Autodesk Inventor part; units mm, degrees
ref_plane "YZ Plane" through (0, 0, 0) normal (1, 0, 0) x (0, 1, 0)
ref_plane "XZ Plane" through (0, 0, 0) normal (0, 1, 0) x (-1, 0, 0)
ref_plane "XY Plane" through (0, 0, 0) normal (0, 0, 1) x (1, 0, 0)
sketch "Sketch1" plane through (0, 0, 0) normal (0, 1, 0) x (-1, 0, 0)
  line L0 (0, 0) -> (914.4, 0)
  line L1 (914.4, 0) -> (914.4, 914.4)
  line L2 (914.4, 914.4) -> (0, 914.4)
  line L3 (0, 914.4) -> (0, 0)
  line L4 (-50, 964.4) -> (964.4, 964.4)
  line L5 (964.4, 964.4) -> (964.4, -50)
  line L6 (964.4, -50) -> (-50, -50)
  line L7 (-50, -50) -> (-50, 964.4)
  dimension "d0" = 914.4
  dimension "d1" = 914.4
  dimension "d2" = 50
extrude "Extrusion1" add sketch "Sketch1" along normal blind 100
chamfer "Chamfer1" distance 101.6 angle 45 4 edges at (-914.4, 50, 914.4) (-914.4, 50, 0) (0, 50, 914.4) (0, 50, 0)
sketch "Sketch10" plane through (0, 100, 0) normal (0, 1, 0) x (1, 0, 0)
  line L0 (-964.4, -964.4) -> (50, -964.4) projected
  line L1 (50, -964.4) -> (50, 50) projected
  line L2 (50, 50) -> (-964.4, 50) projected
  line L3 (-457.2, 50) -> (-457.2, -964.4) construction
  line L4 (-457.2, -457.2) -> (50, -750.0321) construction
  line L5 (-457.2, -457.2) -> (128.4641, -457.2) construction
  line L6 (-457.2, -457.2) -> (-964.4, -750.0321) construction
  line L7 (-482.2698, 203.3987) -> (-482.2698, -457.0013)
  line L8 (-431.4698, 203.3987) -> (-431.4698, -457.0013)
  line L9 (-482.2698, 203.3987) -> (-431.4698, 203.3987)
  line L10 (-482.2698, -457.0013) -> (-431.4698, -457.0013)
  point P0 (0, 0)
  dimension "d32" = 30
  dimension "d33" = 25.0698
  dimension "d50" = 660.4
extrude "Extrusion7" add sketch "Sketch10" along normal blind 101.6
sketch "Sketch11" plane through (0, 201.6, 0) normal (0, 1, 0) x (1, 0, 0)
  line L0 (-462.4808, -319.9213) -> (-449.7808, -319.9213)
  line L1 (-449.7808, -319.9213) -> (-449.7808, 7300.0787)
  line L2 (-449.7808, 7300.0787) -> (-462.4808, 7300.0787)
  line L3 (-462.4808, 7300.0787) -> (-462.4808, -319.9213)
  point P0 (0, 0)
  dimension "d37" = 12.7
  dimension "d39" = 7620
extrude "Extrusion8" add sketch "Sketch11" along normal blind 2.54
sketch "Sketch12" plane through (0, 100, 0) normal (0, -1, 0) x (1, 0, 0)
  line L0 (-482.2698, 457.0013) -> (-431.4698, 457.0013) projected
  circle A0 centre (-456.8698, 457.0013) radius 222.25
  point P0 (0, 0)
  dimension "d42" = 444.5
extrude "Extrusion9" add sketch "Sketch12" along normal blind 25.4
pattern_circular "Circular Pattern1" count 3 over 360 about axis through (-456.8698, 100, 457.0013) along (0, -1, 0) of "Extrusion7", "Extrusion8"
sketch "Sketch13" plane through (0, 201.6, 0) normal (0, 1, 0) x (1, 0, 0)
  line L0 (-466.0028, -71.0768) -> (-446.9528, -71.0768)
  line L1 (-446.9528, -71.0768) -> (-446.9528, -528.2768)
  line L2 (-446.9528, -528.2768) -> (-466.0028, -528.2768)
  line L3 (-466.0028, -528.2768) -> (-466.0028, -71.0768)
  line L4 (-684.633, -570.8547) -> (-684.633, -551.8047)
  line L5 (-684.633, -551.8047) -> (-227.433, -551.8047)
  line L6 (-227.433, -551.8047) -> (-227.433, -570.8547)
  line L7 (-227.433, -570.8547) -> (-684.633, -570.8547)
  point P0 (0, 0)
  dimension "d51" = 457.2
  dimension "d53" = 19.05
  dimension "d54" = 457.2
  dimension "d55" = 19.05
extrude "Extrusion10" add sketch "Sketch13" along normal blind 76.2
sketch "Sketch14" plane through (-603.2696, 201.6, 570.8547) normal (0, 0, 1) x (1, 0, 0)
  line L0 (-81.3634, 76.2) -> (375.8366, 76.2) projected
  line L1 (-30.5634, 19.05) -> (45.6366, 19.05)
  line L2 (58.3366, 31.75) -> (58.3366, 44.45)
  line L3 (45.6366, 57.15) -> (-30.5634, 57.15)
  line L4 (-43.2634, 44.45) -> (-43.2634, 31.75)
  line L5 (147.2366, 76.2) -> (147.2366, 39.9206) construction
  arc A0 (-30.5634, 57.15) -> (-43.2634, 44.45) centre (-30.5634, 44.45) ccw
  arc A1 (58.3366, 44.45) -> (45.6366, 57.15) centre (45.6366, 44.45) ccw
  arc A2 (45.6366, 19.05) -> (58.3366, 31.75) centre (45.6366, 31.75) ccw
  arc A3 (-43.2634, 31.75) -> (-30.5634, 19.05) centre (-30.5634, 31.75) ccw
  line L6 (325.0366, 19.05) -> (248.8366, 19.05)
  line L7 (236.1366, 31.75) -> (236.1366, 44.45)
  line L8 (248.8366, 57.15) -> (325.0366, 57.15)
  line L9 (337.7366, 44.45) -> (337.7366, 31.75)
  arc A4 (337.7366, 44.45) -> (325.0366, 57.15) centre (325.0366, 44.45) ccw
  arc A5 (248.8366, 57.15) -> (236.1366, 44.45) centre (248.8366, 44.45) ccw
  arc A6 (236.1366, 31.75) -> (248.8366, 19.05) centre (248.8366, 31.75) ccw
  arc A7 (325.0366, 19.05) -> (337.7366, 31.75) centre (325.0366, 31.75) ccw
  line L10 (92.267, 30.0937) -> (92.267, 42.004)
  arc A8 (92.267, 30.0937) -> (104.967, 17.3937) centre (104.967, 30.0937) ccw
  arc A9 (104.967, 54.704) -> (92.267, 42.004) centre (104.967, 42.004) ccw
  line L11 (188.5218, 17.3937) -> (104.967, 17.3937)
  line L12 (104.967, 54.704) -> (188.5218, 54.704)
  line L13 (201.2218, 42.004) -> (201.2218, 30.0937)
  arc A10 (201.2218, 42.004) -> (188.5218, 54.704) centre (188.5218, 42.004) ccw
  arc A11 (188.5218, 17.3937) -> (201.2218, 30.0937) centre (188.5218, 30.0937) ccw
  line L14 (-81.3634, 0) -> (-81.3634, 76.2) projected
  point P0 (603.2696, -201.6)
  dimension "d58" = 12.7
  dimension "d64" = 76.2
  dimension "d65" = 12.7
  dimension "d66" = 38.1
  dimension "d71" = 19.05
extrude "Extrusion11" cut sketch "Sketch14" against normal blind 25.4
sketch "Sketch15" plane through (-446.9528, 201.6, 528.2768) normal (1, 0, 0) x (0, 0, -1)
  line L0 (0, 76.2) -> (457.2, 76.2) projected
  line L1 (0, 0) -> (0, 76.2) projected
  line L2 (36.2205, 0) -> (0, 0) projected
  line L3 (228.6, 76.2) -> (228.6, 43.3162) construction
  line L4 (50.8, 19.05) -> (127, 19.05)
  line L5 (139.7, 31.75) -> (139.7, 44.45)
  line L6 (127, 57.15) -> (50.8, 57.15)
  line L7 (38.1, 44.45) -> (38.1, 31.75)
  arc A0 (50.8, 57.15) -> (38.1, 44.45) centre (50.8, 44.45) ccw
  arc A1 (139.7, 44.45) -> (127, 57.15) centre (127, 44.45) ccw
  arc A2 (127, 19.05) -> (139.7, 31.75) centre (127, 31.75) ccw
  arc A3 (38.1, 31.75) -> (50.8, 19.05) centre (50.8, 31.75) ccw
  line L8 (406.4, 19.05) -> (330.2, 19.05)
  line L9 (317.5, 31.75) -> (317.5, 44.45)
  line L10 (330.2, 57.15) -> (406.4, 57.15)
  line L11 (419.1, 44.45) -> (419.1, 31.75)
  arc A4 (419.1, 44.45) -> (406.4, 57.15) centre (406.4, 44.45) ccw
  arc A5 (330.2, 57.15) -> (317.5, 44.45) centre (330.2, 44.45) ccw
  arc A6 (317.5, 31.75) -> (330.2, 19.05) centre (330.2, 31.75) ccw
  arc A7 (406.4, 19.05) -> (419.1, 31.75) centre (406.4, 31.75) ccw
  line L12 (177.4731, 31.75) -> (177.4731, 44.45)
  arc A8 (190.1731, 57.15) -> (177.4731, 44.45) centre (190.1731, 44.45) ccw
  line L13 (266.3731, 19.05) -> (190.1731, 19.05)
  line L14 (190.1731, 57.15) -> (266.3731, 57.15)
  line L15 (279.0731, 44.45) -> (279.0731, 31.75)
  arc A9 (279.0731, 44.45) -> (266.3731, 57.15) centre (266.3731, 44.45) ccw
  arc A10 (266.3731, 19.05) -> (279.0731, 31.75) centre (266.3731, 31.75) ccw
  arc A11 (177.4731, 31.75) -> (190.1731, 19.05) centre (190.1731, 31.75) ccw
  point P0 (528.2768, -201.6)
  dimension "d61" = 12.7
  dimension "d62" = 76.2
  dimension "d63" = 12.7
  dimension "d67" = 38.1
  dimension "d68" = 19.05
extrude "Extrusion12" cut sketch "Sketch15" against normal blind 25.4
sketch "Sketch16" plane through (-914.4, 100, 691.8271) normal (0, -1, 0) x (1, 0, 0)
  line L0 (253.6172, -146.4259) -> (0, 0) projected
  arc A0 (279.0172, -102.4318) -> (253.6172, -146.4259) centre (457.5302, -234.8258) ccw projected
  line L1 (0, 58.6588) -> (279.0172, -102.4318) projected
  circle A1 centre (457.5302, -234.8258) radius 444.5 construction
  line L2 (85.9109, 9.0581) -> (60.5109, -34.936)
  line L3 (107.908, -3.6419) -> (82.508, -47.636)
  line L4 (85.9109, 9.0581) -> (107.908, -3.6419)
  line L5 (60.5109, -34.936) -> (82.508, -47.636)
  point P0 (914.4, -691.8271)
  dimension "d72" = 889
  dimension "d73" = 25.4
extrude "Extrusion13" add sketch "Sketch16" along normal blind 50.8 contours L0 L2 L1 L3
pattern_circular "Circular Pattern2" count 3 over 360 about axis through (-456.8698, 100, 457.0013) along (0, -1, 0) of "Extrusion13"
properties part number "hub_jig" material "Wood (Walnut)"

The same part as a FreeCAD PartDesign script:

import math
import FreeCAD as App
import Part
import Sketcher

V = App.Vector
Q = App.Units.Quantity


def edges_at(feature, points):
    """Names of the edges that pass closest to the given points."""
    edges = feature.Shape.Edges
    near = lambda p: min(range(len(edges)), key=lambda i: edges[i].distToShape(Part.Vertex(*p))[0])
    return sorted({f"Edge{near(p) + 1}" for p in points})

doc = App.newDocument("Part")
body = doc.addObject("PartDesign::Body", "Body")

# Sketch on XZ plane
sketch1 = body.newObject("Sketcher::SketchObject", "Sketch")
sketch1.AttachmentSupport = (doc.getObject("XZ_Plane"), [""])
sketch1.MapMode = "FlatFace"
sketch1.addGeometry([
    Part.LineSegment(V(-964.4, 964.4, 0), V(50, 964.4, 0)),  # 0
    Part.LineSegment(V(50, 964.4, 0), V(50, -50, 0)),  # 1
    Part.LineSegment(V(50, -50, 0), V(-964.4, -50, 0)),  # 2
    Part.LineSegment(V(-964.4, -50, 0), V(-964.4, 964.4, 0)),  # 3
    Part.LineSegment(V(-914.4, 0, 0), V(0, 0, 0)),  # 4
    Part.LineSegment(V(0, 0, 0), V(0, 914.4, 0)),  # 5
    Part.LineSegment(V(0, 914.4, 0), V(-914.4, 914.4, 0)),  # 6
    Part.LineSegment(V(-914.4, 914.4, 0), V(-914.4, 0, 0)),  # 7
], False)
sketch1.addConstraint([
    Sketcher.Constraint("Coincident", 0, 2, 1, 1),
    Sketcher.Constraint("Coincident", 1, 2, 2, 1),
    Sketcher.Constraint("Coincident", 2, 2, 3, 1),
    Sketcher.Constraint("Coincident", 3, 2, 0, 1),
    Sketcher.Constraint("Coincident", 4, 2, 5, 1),
    Sketcher.Constraint("Coincident", 5, 2, 6, 1),
    Sketcher.Constraint("Coincident", 6, 2, 7, 1),
    Sketcher.Constraint("Coincident", 7, 2, 4, 1),
    Sketcher.Constraint("Horizontal", 0),
    Sketcher.Constraint("Vertical", 1),
    Sketcher.Constraint("Horizontal", 2),
    Sketcher.Constraint("Vertical", 3),
    Sketcher.Constraint("Horizontal", 4),
    Sketcher.Constraint("Vertical", 5),
    Sketcher.Constraint("Horizontal", 6),
    Sketcher.Constraint("Vertical", 7),
    Sketcher.Constraint("Coincident", 4, 2, -1, 1),
    Sketcher.Constraint("Equal", 2, 1),
    Sketcher.Constraint("Equal", 6, 5),
    Sketcher.Constraint("DistanceX", 4, 1, 4, 2, Q("36 in")),
    Sketcher.Constraint("DistanceX", -1, 1, 0, 2, Q("1.9685 in")),
    Sketcher.Constraint("DistanceY", 1, 2, -1, 1, Q("1.9685 in")),
    Sketcher.Constraint("DistanceY", 5, 2, 0, 2, Q("1.9685 in")),
])
pad1 = body.newObject("PartDesign::Pad", "Pad")
pad1.Profile = sketch1
pad1.Length = Q("3.9370079 in")
pad1.Reversed = True
doc.recompute()

chamfer = body.newObject("PartDesign::Chamfer", "Chamfer")
chamfer.Base = (pad1, edges_at(pad1, [
    (-914.4, 50, 914.4),
    (-914.4, 50, 0),
    (0, 50, 914.4),
    (0, 50, 0),
]))
chamfer.Size = Q("4 in")

# Sketch on XZ plane
sketch2 = body.newObject("Sketcher::SketchObject", "Sketch001")
sketch2.AttachmentSupport = (doc.getObject("XZ_Plane"), [""])
sketch2.MapMode = "FlatFace"
sketch2.AttachmentOffset = App.Placement(V(0, 0, -3.9370079 * 25.4), App.Rotation())
sketch2.addGeometry([
    Part.LineSegment(V(-431.4698, 457.0013, 0), V(-431.4698, -203.3987, 0)),
    Part.LineSegment(V(-431.4698, -203.3987, 0), V(-482.2698, -203.3987, 0)),
    Part.LineSegment(V(-482.2698, -203.3987, 0), V(-482.2698, 457.0013, 0)),
    Part.LineSegment(V(-482.2698, 457.0013, 0), V(-431.4698, 457.0013, 0)),
], False)
sketch2.addConstraint([
    Sketcher.Constraint("Coincident", 0, 2, 1, 1),
    Sketcher.Constraint("Coincident", 1, 2, 2, 1),
    Sketcher.Constraint("Coincident", 2, 2, 3, 1),
    Sketcher.Constraint("Coincident", 3, 2, 0, 1),
    Sketcher.Constraint("Vertical", 0),
    Sketcher.Constraint("Horizontal", 1),
    Sketcher.Constraint("Vertical", 2),
    Sketcher.Constraint("Horizontal", 3),
    Sketcher.Constraint("DistanceY", 0, 2, 0, 1, Q("26 in")),
    Sketcher.Constraint("DistanceX", 1, 2, 1, 1, Q("2 in")),
    Sketcher.Constraint("DistanceX", 0, 2, -1, 1, Q("16.987 in")),
    Sketcher.Constraint("DistanceY", 0, 2, -1, 1, Q("203.3987 mm")),
])
pad2 = body.newObject("PartDesign::Pad", "Pad001")
pad2.Profile = sketch2
pad2.Length = Q("4 in")
pad2.Reversed = True

# Sketch on XZ plane
sketch3 = body.newObject("Sketcher::SketchObject", "Sketch002")
sketch3.AttachmentSupport = (doc.getObject("XZ_Plane"), [""])
sketch3.MapMode = "FlatFace"
sketch3.AttachmentOffset = App.Placement(V(0, 0, -7.9370079 * 25.4), App.Rotation())
sketch3.addGeometry([
    Part.LineSegment(V(-462.4808, -7300.0787, 0), V(-462.4808, 319.9213, 0)),
    Part.LineSegment(V(-462.4808, 319.9213, 0), V(-449.7808, 319.9213, 0)),
    Part.LineSegment(V(-449.7808, 319.9213, 0), V(-449.7808, -7300.0787, 0)),
    Part.LineSegment(V(-449.7808, -7300.0787, 0), V(-462.4808, -7300.0787, 0)),
], False)
sketch3.addConstraint([
    Sketcher.Constraint("Coincident", 0, 2, 1, 1),
    Sketcher.Constraint("Coincident", 1, 2, 2, 1),
    Sketcher.Constraint("Coincident", 2, 2, 3, 1),
    Sketcher.Constraint("Coincident", 3, 2, 0, 1),
    Sketcher.Constraint("Vertical", 0),
    Sketcher.Constraint("Horizontal", 1),
    Sketcher.Constraint("Vertical", 2),
    Sketcher.Constraint("Horizontal", 3),
    Sketcher.Constraint("DistanceY", 0, 1, 0, 2, Q("300 in")),
    Sketcher.Constraint("DistanceX", 1, 1, 1, 2, Q("0.5 in")),
    Sketcher.Constraint("DistanceX", 0, 2, -1, 1, Q("18.2079 in")),
    Sketcher.Constraint("DistanceY", -1, 1, 0, 2, Q("319.9213 mm")),
])
pad3 = body.newObject("PartDesign::Pad", "Pad002")
pad3.Profile = sketch3
pad3.Length = Q("0.1 in")
pad3.Reversed = True

# Sketch on XZ plane
sketch4 = body.newObject("Sketcher::SketchObject", "Sketch003")
sketch4.AttachmentSupport = (doc.getObject("XZ_Plane"), [""])
sketch4.MapMode = "FlatFace"
sketch4.AttachmentOffset = App.Placement(V(0, 0, -3.9370079 * 25.4), App.Rotation())
sketch4.addGeometry(Part.Circle(V(-456.8698, 457.0013, 0), V(0, 0, 1), 222.25), False)
sketch4.addConstraint([
    Sketcher.Constraint("Diameter", 0, Q("17.5 in")),
    Sketcher.Constraint("DistanceX", 0, 3, -1, 1, Q("17.987 in")),
    Sketcher.Constraint("DistanceY", -1, 1, 0, 3, Q("457.0013 mm")),
])
pad4 = body.newObject("PartDesign::Pad", "Pad003")
pad4.Profile = sketch4
pad4.Length = Q("1 in")
doc.recompute()

datumline = body.newObject("PartDesign::Line", "DatumLine")
datumline.Placement = App.Placement(V(-456.8698, 0, 457.0013), App.Rotation(V(0, 0, 1), V(0, 1, 0)))
polarpattern = body.newObject("PartDesign::PolarPattern", "PolarPattern")
polarpattern.Originals = [pad2, pad3]
polarpattern.Axis = (datumline, [""])
polarpattern.Angle = 360
polarpattern.Occurrences = 3
body.Tip = polarpattern

# Sketch on XZ plane
sketch5 = body.newObject("Sketcher::SketchObject", "Sketch004")
sketch5.AttachmentSupport = (doc.getObject("XZ_Plane"), [""])
sketch5.MapMode = "FlatFace"
sketch5.AttachmentOffset = App.Placement(V(0, 0, -7.9370079 * 25.4), App.Rotation())
sketch5.addGeometry([
    Part.LineSegment(V(-446.9528, 71.0768, 0), V(-466.0028, 71.0768, 0)),  # 0
    Part.LineSegment(V(-466.0028, 71.0768, 0), V(-466.0028, 528.2768, 0)),  # 1
    Part.LineSegment(V(-466.0028, 528.2768, 0), V(-446.9528, 528.2768, 0)),  # 2
    Part.LineSegment(V(-446.9528, 528.2768, 0), V(-446.9528, 71.0768, 0)),  # 3
    Part.LineSegment(V(-684.633, 551.8047, 0), V(-684.633, 570.8547, 0)),  # 4
    Part.LineSegment(V(-684.633, 570.8547, 0), V(-227.433, 570.8547, 0)),  # 5
    Part.LineSegment(V(-227.433, 570.8547, 0), V(-227.433, 551.8047, 0)),  # 6
    Part.LineSegment(V(-227.433, 551.8047, 0), V(-684.633, 551.8047, 0)),  # 7
], False)
sketch5.addConstraint([
    Sketcher.Constraint("Coincident", 0, 2, 1, 1),
    Sketcher.Constraint("Coincident", 1, 2, 2, 1),
    Sketcher.Constraint("Coincident", 2, 2, 3, 1),
    Sketcher.Constraint("Coincident", 3, 2, 0, 1),
    Sketcher.Constraint("Coincident", 4, 2, 5, 1),
    Sketcher.Constraint("Coincident", 5, 2, 6, 1),
    Sketcher.Constraint("Coincident", 6, 2, 7, 1),
    Sketcher.Constraint("Coincident", 7, 2, 4, 1),
    Sketcher.Constraint("Horizontal", 0),
    Sketcher.Constraint("Vertical", 1),
    Sketcher.Constraint("Horizontal", 2),
    Sketcher.Constraint("Vertical", 3),
    Sketcher.Constraint("Vertical", 4),
    Sketcher.Constraint("Horizontal", 5),
    Sketcher.Constraint("Vertical", 6),
    Sketcher.Constraint("Horizontal", 7),
    Sketcher.Constraint("Equal", 7, 1),
    Sketcher.Constraint("Equal", 2, 4),
    Sketcher.Constraint("DistanceX", 5, 1, 5, 2, Q("18 in")),
    Sketcher.Constraint("DistanceX", 0, 2, 0, 1, Q("0.75 in")),
    Sketcher.Constraint("DistanceY", -1, 1, 0, 2, Q("2.7983 in")),
    Sketcher.Constraint("DistanceY", -1, 1, 4, 2, Q("22.4746 in")),
    Sketcher.Constraint("DistanceX", 4, 2, 1, 2, Q("8.6075 in")),
    Sketcher.Constraint("DistanceX", 0, 2, -1, 1, Q("466.0028 mm")),
])
pad5 = body.newObject("PartDesign::Pad", "Pad004")
pad5.Profile = sketch5
pad5.Length = Q("3 in")
pad5.Reversed = True

# Sketch on XY plane
sketch6 = body.newObject("Sketcher::SketchObject", "Sketch005")
sketch6.AttachmentSupport = (doc.getObject("XY_Plane"), [""])
sketch6.MapMode = "FlatFace"
sketch6.AttachmentOffset = App.Placement(V(0, 0, 22.4745945 * 25.4), App.Rotation())
sketch6.addGeometry([
    Part.ArcOfCircle(Part.Circle(V(-633.833, 233.35, 0), V(0, 0, 1), 12.7), math.radians(180), math.radians(270)),  # 0
    Part.LineSegment(V(-633.833, 220.65, 0), V(-557.633, 220.65, 0)),  # 1
    Part.ArcOfCircle(Part.Circle(V(-557.633, 233.35, 0), V(0, 0, 1), 12.7), math.radians(-90), math.radians(0)),  # 2
    Part.LineSegment(V(-544.933, 233.35, 0), V(-544.933, 246.05, 0)),  # 3
    Part.ArcOfCircle(Part.Circle(V(-557.633, 246.05, 0), V(0, 0, 1), 12.7), math.radians(0), math.radians(90)),  # 4
    Part.LineSegment(V(-557.633, 258.75, 0), V(-633.833, 258.75, 0)),  # 5
    Part.ArcOfCircle(Part.Circle(V(-633.833, 246.05, 0), V(0, 0, 1), 12.7), math.radians(90), math.radians(180)),  # 6
    Part.LineSegment(V(-646.533, 246.05, 0), V(-646.533, 233.35, 0)),  # 7
    Part.LineSegment(V(-354.433, 220.65, 0), V(-278.233, 220.65, 0)),  # 8
    Part.ArcOfCircle(Part.Circle(V(-278.233, 233.35, 0), V(0, 0, 1), 12.7), math.radians(-90), math.radians(0)),  # 9
    Part.LineSegment(V(-265.533, 233.35, 0), V(-265.533, 246.05, 0)),  # 10
    Part.ArcOfCircle(Part.Circle(V(-278.233, 246.05, 0), V(0, 0, 1), 12.7), math.radians(0), math.radians(90)),  # 11
    Part.LineSegment(V(-278.233, 258.75, 0), V(-354.433, 258.75, 0)),  # 12
    Part.ArcOfCircle(Part.Circle(V(-354.433, 246.05, 0), V(0, 0, 1), 12.7), math.radians(90), math.radians(180)),  # 13
    Part.LineSegment(V(-367.133, 246.05, 0), V(-367.133, 233.35, 0)),  # 14
    Part.ArcOfCircle(Part.Circle(V(-354.433, 233.35, 0), V(0, 0, 1), 12.7), math.radians(180), math.radians(270)),  # 15
    Part.LineSegment(V(-511.0026, 243.604, 0), V(-511.0026, 231.6937, 0)),  # 16
    Part.ArcOfCircle(Part.Circle(V(-498.3026, 231.6937, 0), V(0, 0, 1), 12.7), math.radians(180), math.radians(270)),  # 17
    Part.LineSegment(V(-498.3026, 218.9937, 0), V(-414.7478, 218.9937, 0)),  # 18
    Part.ArcOfCircle(Part.Circle(V(-414.7478, 231.6937, 0), V(0, 0, 1), 12.7), math.radians(-90), math.radians(0)),  # 19
    Part.LineSegment(V(-402.0478, 231.6937, 0), V(-402.0478, 243.604, 0)),  # 20
    Part.ArcOfCircle(Part.Circle(V(-414.7478, 243.604, 0), V(0, 0, 1), 12.7), math.radians(0), math.radians(90)),  # 21
    Part.LineSegment(V(-414.7478, 256.304, 0), V(-498.3026, 256.304, 0)),  # 22
    Part.ArcOfCircle(Part.Circle(V(-498.3026, 243.604, 0), V(0, 0, 1), 12.7), math.radians(90), math.radians(180)),  # 23
], False)
sketch6.addConstraint([
    Sketcher.Constraint("Tangent", 0, 2, 1, 1),
    Sketcher.Constraint("Tangent", 1, 2, 2, 1),
    Sketcher.Constraint("Tangent", 2, 2, 3, 1),
    Sketcher.Constraint("Tangent", 3, 2, 4, 1),
    Sketcher.Constraint("Tangent", 4, 2, 5, 1),
    Sketcher.Constraint("Tangent", 5, 2, 6, 1),
    Sketcher.Constraint("Tangent", 6, 2, 7, 1),
    Sketcher.Constraint("Tangent", 7, 2, 0, 1),
    Sketcher.Constraint("Tangent", 8, 2, 9, 1),
    Sketcher.Constraint("Tangent", 9, 2, 10, 1),
    Sketcher.Constraint("Tangent", 10, 2, 11, 1),
    Sketcher.Constraint("Tangent", 11, 2, 12, 1),
    Sketcher.Constraint("Tangent", 12, 2, 13, 1),
    Sketcher.Constraint("Tangent", 13, 2, 14, 1),
    Sketcher.Constraint("Tangent", 14, 2, 15, 1),
    Sketcher.Constraint("Tangent", 15, 2, 8, 1),
    Sketcher.Constraint("Tangent", 16, 2, 17, 1),
    Sketcher.Constraint("Tangent", 17, 2, 18, 1),
    Sketcher.Constraint("Tangent", 18, 2, 19, 1),
    Sketcher.Constraint("Tangent", 19, 2, 20, 1),
    Sketcher.Constraint("Tangent", 20, 2, 21, 1),
    Sketcher.Constraint("Tangent", 21, 2, 22, 1),
    Sketcher.Constraint("Tangent", 22, 2, 23, 1),
    Sketcher.Constraint("Tangent", 23, 2, 16, 1),
    Sketcher.Constraint("Horizontal", 1),
    Sketcher.Constraint("Vertical", 3),
    Sketcher.Constraint("Horizontal", 5),
    Sketcher.Constraint("Vertical", 7),
    Sketcher.Constraint("Horizontal", 8),
    Sketcher.Constraint("Vertical", 10),
    Sketcher.Constraint("Horizontal", 12),
    Sketcher.Constraint("Vertical", 14),
    Sketcher.Constraint("Vertical", 16),
    Sketcher.Constraint("Horizontal", 18),
    Sketcher.Constraint("Vertical", 20),
    Sketcher.Constraint("Horizontal", 22),
    Sketcher.Constraint("Equal", 0, 2),
    Sketcher.Constraint("Equal", 2, 4),
    Sketcher.Constraint("Equal", 4, 6),
    Sketcher.Constraint("Equal", 6, 9),
    Sketcher.Constraint("Equal", 9, 11),
    Sketcher.Constraint("Equal", 11, 13),
    Sketcher.Constraint("Equal", 13, 15),
    Sketcher.Constraint("Equal", 15, 17),
    Sketcher.Constraint("Equal", 17, 19),
    Sketcher.Constraint("Equal", 19, 21),
    Sketcher.Constraint("Equal", 21, 23),
    Sketcher.Constraint("Horizontal", 2, 3, 9, 3),
    Sketcher.Constraint("Horizontal", 6, 3, 11, 3),
    Sketcher.Constraint("Equal", 5, 8),
    Sketcher.Constraint("Radius", 0, Q("0.5 in")),
    Sketcher.Constraint("DistanceX", 1, 1, 1, 2, Q("3 in")),
    Sketcher.Constraint("DistanceY", 3, 1, 3, 2, Q("0.5 in")),
    Sketcher.Constraint("DistanceX", 2, 3, 9, 3, Q("11 in")),
    Sketcher.Constraint("DistanceY", 16, 2, 16, 1, Q("0.4689 in")),
    Sketcher.Constraint("DistanceY", -1, 1, 0, 3, Q("9.187 in")),
    Sketcher.Constraint("DistanceX", 18, 1, 18, 2, Q("83.5548 mm")),
    Sketcher.Constraint("DistanceY", -1, 1, 17, 3, Q("9.1218 in")),
    Sketcher.Constraint("DistanceX", 19, 3, 15, 3, Q("2.3746 in")),
    Sketcher.Constraint("DistanceX", 0, 3, -1, 1, Q("633.833 mm")),
])
pocket1 = body.newObject("PartDesign::Pocket", "Pocket")
pocket1.Profile = sketch6
pocket1.Length = Q("1 in")

# Sketch on YZ plane
sketch7 = body.newObject("Sketcher::SketchObject", "Sketch006")
sketch7.AttachmentSupport = (doc.getObject("YZ_Plane"), [""])
sketch7.MapMode = "FlatFace"
sketch7.AttachmentOffset = App.Placement(V(0, 0, -446.9528), App.Rotation())
sketch7.addGeometry([
    Part.ArcOfCircle(Part.Circle(V(233.35, 477.4768, 0), V(0, 0, 1), 12.7), math.radians(90), math.radians(180)),  # 0
    Part.LineSegment(V(220.65, 477.4768, 0), V(220.65, 401.2768, 0)),  # 1
    Part.ArcOfCircle(Part.Circle(V(233.35, 401.2768, 0), V(0, 0, 1), 12.7), math.radians(180), math.radians(270)),  # 2
    Part.LineSegment(V(233.35, 388.5768, 0), V(246.05, 388.5768, 0)),  # 3
    Part.ArcOfCircle(Part.Circle(V(246.05, 401.2768, 0), V(0, 0, 1), 12.7), math.radians(-90), math.radians(0)),  # 4
    Part.LineSegment(V(258.75, 401.2768, 0), V(258.75, 477.4768, 0)),  # 5
    Part.ArcOfCircle(Part.Circle(V(246.05, 477.4768, 0), V(0, 0, 1), 12.7), math.radians(0), math.radians(90)),  # 6
    Part.LineSegment(V(246.05, 490.1768, 0), V(233.35, 490.1768, 0)),  # 7
    Part.LineSegment(V(220.65, 198.0768, 0), V(220.65, 121.8768, 0)),  # 8
    Part.ArcOfCircle(Part.Circle(V(233.35, 121.8768, 0), V(0, 0, 1), 12.7), math.radians(180), math.radians(270)),  # 9
    Part.LineSegment(V(233.35, 109.1768, 0), V(246.05, 109.1768, 0)),  # 10
    Part.ArcOfCircle(Part.Circle(V(246.05, 121.8768, 0), V(0, 0, 1), 12.7), math.radians(-90), math.radians(0)),  # 11
    Part.LineSegment(V(258.75, 121.8768, 0), V(258.75, 198.0768, 0)),  # 12
    Part.ArcOfCircle(Part.Circle(V(246.05, 198.0768, 0), V(0, 0, 1), 12.7), math.radians(0), math.radians(90)),  # 13
    Part.LineSegment(V(246.05, 210.7768, 0), V(233.35, 210.7768, 0)),  # 14
    Part.ArcOfCircle(Part.Circle(V(233.35, 198.0768, 0), V(0, 0, 1), 12.7), math.radians(90), math.radians(180)),  # 15
    Part.LineSegment(V(246.05, 350.8037, 0), V(233.35, 350.8037, 0)),  # 16
    Part.ArcOfCircle(Part.Circle(V(233.35, 338.1037, 0), V(0, 0, 1), 12.7), math.radians(90), math.radians(180)),  # 17
    Part.LineSegment(V(220.65, 338.1037, 0), V(220.65, 261.9037, 0)),  # 18
    Part.ArcOfCircle(Part.Circle(V(233.35, 261.9037, 0), V(0, 0, 1), 12.7), math.radians(180), math.radians(270)),  # 19
    Part.LineSegment(V(233.35, 249.2037, 0), V(246.05, 249.2037, 0)),  # 20
    Part.ArcOfCircle(Part.Circle(V(246.05, 261.9037, 0), V(0, 0, 1), 12.7), math.radians(-90), math.radians(0)),  # 21
    Part.LineSegment(V(258.75, 261.9037, 0), V(258.75, 338.1037, 0)),  # 22
    Part.ArcOfCircle(Part.Circle(V(246.05, 338.1037, 0), V(0, 0, 1), 12.7), math.radians(0), math.radians(90)),  # 23
], False)
sketch7.addConstraint([
    Sketcher.Constraint("Tangent", 0, 2, 1, 1),
    Sketcher.Constraint("Tangent", 1, 2, 2, 1),
    Sketcher.Constraint("Tangent", 2, 2, 3, 1),
    Sketcher.Constraint("Tangent", 3, 2, 4, 1),
    Sketcher.Constraint("Tangent", 4, 2, 5, 1),
    Sketcher.Constraint("Tangent", 5, 2, 6, 1),
    Sketcher.Constraint("Tangent", 6, 2, 7, 1),
    Sketcher.Constraint("Tangent", 7, 2, 0, 1),
    Sketcher.Constraint("Tangent", 8, 2, 9, 1),
    Sketcher.Constraint("Tangent", 9, 2, 10, 1),
    Sketcher.Constraint("Tangent", 10, 2, 11, 1),
    Sketcher.Constraint("Tangent", 11, 2, 12, 1),
    Sketcher.Constraint("Tangent", 12, 2, 13, 1),
    Sketcher.Constraint("Tangent", 13, 2, 14, 1),
    Sketcher.Constraint("Tangent", 14, 2, 15, 1),
    Sketcher.Constraint("Tangent", 15, 2, 8, 1),
    Sketcher.Constraint("Tangent", 16, 2, 17, 1),
    Sketcher.Constraint("Tangent", 17, 2, 18, 1),
    Sketcher.Constraint("Tangent", 18, 2, 19, 1),
    Sketcher.Constraint("Tangent", 19, 2, 20, 1),
    Sketcher.Constraint("Tangent", 20, 2, 21, 1),
    Sketcher.Constraint("Tangent", 21, 2, 22, 1),
    Sketcher.Constraint("Tangent", 22, 2, 23, 1),
    Sketcher.Constraint("Tangent", 23, 2, 16, 1),
    Sketcher.Constraint("Vertical", 1),
    Sketcher.Constraint("Horizontal", 3),
    Sketcher.Constraint("Vertical", 5),
    Sketcher.Constraint("Horizontal", 7),
    Sketcher.Constraint("Vertical", 8),
    Sketcher.Constraint("Horizontal", 10),
    Sketcher.Constraint("Vertical", 12),
    Sketcher.Constraint("Horizontal", 14),
    Sketcher.Constraint("Horizontal", 16),
    Sketcher.Constraint("Vertical", 18),
    Sketcher.Constraint("Horizontal", 20),
    Sketcher.Constraint("Vertical", 22),
    Sketcher.Constraint("Equal", 0, 2),
    Sketcher.Constraint("Equal", 2, 4),
    Sketcher.Constraint("Equal", 4, 6),
    Sketcher.Constraint("Equal", 6, 9),
    Sketcher.Constraint("Equal", 9, 11),
    Sketcher.Constraint("Equal", 11, 13),
    Sketcher.Constraint("Equal", 13, 15),
    Sketcher.Constraint("Equal", 15, 17),
    Sketcher.Constraint("Equal", 17, 19),
    Sketcher.Constraint("Equal", 19, 21),
    Sketcher.Constraint("Equal", 21, 23),
    Sketcher.Constraint("Vertical", 2, 3, 9, 3),
    Sketcher.Constraint("Vertical", 6, 3, 11, 3),
    Sketcher.Constraint("Vertical", 15, 3, 17, 3),
    Sketcher.Constraint("Vertical", 13, 3, 21, 3),
    Sketcher.Constraint("Equal", 5, 8),
    Sketcher.Constraint("Equal", 12, 18),
    Sketcher.Constraint("Radius", 0, Q("0.5 in")),
    Sketcher.Constraint("DistanceY", 1, 2, 1, 1, Q("3 in")),
    Sketcher.Constraint("DistanceX", 3, 1, 3, 2, Q("0.5 in")),
    Sketcher.Constraint("DistanceY", 9, 3, 2, 3, Q("11 in")),
    Sketcher.Constraint("DistanceX", -1, 1, 0, 3, Q("9.187 in")),
    Sketcher.Constraint("DistanceY", -1, 1, 0, 3, Q("18.7983 in")),
    Sketcher.Constraint("DistanceY", -1, 1, 17, 3, Q("338.1037 mm")),
])
pocket2 = body.newObject("PartDesign::Pocket", "Pocket001")
pocket2.Profile = sketch7
pocket2.Length = Q("1 in")

# Sketch on XZ plane
sketch8 = body.newObject("Sketcher::SketchObject", "Sketch007")
sketch8.AttachmentSupport = (doc.getObject("XZ_Plane"), [""])
sketch8.MapMode = "FlatFace"
sketch8.AttachmentOffset = App.Placement(V(0, 0, -3.9370079 * 25.4), App.Rotation())
sketch8.addGeometry([
    Part.LineSegment(V(-853.889087, 656.891122, 0), V(-831.891999, 644.191102, 0)),
    Part.LineSegment(V(-831.892, 644.1911, 0), V(-806.492, 688.1852, 0)),
    Part.LineSegment(V(-806.491996, 688.185206, 0), V(-828.489084, 700.885227, 0)),
    Part.LineSegment(V(-828.4891, 700.8852, 0), V(-853.8891, 656.8911, 0)),
], False)
sketch8.addConstraint([
    Sketcher.Constraint("Coincident", 0, 2, 1, 1),
    Sketcher.Constraint("Coincident", 1, 2, 2, 1),
    Sketcher.Constraint("Coincident", 2, 2, 3, 1),
    Sketcher.Constraint("Coincident", 3, 2, 0, 1),
    Sketcher.Constraint("Perpendicular", 0, 1),
    Sketcher.Constraint("Perpendicular", 1, 2),
    Sketcher.Constraint("Perpendicular", 2, 3),
    Sketcher.Constraint("Distance", 0, Q("1 in")),
    Sketcher.Constraint("DistanceX", 0, 2, 1, 2, Q("1 in")),
    Sketcher.Constraint("Distance", 1, Q("2 in")),
    Sketcher.Constraint("DistanceY", -1, 1, 1, 2, Q("27.0939 in")),
    Sketcher.Constraint("DistanceX", 0, 2, -1, 1, Q("831.892 mm")),
])
pad6 = body.newObject("PartDesign::Pad", "Pad005")
pad6.Profile = sketch8
pad6.Length = Q("2 in")
doc.recompute()

datumline2 = body.newObject("PartDesign::Line", "DatumLine001")
datumline2.Placement = App.Placement(V(-456.8698, 0, 457.0013), App.Rotation(V(0, 0, 1), V(0, 1, 0)))
polarpattern2 = body.newObject("PartDesign::PolarPattern", "PolarPattern001")
polarpattern2.Originals = [pad6]
polarpattern2.Axis = (datumline2, [""])
polarpattern2.Angle = 360
polarpattern2.Occurrences = 3
body.Tip = polarpattern2

doc.recompute()
